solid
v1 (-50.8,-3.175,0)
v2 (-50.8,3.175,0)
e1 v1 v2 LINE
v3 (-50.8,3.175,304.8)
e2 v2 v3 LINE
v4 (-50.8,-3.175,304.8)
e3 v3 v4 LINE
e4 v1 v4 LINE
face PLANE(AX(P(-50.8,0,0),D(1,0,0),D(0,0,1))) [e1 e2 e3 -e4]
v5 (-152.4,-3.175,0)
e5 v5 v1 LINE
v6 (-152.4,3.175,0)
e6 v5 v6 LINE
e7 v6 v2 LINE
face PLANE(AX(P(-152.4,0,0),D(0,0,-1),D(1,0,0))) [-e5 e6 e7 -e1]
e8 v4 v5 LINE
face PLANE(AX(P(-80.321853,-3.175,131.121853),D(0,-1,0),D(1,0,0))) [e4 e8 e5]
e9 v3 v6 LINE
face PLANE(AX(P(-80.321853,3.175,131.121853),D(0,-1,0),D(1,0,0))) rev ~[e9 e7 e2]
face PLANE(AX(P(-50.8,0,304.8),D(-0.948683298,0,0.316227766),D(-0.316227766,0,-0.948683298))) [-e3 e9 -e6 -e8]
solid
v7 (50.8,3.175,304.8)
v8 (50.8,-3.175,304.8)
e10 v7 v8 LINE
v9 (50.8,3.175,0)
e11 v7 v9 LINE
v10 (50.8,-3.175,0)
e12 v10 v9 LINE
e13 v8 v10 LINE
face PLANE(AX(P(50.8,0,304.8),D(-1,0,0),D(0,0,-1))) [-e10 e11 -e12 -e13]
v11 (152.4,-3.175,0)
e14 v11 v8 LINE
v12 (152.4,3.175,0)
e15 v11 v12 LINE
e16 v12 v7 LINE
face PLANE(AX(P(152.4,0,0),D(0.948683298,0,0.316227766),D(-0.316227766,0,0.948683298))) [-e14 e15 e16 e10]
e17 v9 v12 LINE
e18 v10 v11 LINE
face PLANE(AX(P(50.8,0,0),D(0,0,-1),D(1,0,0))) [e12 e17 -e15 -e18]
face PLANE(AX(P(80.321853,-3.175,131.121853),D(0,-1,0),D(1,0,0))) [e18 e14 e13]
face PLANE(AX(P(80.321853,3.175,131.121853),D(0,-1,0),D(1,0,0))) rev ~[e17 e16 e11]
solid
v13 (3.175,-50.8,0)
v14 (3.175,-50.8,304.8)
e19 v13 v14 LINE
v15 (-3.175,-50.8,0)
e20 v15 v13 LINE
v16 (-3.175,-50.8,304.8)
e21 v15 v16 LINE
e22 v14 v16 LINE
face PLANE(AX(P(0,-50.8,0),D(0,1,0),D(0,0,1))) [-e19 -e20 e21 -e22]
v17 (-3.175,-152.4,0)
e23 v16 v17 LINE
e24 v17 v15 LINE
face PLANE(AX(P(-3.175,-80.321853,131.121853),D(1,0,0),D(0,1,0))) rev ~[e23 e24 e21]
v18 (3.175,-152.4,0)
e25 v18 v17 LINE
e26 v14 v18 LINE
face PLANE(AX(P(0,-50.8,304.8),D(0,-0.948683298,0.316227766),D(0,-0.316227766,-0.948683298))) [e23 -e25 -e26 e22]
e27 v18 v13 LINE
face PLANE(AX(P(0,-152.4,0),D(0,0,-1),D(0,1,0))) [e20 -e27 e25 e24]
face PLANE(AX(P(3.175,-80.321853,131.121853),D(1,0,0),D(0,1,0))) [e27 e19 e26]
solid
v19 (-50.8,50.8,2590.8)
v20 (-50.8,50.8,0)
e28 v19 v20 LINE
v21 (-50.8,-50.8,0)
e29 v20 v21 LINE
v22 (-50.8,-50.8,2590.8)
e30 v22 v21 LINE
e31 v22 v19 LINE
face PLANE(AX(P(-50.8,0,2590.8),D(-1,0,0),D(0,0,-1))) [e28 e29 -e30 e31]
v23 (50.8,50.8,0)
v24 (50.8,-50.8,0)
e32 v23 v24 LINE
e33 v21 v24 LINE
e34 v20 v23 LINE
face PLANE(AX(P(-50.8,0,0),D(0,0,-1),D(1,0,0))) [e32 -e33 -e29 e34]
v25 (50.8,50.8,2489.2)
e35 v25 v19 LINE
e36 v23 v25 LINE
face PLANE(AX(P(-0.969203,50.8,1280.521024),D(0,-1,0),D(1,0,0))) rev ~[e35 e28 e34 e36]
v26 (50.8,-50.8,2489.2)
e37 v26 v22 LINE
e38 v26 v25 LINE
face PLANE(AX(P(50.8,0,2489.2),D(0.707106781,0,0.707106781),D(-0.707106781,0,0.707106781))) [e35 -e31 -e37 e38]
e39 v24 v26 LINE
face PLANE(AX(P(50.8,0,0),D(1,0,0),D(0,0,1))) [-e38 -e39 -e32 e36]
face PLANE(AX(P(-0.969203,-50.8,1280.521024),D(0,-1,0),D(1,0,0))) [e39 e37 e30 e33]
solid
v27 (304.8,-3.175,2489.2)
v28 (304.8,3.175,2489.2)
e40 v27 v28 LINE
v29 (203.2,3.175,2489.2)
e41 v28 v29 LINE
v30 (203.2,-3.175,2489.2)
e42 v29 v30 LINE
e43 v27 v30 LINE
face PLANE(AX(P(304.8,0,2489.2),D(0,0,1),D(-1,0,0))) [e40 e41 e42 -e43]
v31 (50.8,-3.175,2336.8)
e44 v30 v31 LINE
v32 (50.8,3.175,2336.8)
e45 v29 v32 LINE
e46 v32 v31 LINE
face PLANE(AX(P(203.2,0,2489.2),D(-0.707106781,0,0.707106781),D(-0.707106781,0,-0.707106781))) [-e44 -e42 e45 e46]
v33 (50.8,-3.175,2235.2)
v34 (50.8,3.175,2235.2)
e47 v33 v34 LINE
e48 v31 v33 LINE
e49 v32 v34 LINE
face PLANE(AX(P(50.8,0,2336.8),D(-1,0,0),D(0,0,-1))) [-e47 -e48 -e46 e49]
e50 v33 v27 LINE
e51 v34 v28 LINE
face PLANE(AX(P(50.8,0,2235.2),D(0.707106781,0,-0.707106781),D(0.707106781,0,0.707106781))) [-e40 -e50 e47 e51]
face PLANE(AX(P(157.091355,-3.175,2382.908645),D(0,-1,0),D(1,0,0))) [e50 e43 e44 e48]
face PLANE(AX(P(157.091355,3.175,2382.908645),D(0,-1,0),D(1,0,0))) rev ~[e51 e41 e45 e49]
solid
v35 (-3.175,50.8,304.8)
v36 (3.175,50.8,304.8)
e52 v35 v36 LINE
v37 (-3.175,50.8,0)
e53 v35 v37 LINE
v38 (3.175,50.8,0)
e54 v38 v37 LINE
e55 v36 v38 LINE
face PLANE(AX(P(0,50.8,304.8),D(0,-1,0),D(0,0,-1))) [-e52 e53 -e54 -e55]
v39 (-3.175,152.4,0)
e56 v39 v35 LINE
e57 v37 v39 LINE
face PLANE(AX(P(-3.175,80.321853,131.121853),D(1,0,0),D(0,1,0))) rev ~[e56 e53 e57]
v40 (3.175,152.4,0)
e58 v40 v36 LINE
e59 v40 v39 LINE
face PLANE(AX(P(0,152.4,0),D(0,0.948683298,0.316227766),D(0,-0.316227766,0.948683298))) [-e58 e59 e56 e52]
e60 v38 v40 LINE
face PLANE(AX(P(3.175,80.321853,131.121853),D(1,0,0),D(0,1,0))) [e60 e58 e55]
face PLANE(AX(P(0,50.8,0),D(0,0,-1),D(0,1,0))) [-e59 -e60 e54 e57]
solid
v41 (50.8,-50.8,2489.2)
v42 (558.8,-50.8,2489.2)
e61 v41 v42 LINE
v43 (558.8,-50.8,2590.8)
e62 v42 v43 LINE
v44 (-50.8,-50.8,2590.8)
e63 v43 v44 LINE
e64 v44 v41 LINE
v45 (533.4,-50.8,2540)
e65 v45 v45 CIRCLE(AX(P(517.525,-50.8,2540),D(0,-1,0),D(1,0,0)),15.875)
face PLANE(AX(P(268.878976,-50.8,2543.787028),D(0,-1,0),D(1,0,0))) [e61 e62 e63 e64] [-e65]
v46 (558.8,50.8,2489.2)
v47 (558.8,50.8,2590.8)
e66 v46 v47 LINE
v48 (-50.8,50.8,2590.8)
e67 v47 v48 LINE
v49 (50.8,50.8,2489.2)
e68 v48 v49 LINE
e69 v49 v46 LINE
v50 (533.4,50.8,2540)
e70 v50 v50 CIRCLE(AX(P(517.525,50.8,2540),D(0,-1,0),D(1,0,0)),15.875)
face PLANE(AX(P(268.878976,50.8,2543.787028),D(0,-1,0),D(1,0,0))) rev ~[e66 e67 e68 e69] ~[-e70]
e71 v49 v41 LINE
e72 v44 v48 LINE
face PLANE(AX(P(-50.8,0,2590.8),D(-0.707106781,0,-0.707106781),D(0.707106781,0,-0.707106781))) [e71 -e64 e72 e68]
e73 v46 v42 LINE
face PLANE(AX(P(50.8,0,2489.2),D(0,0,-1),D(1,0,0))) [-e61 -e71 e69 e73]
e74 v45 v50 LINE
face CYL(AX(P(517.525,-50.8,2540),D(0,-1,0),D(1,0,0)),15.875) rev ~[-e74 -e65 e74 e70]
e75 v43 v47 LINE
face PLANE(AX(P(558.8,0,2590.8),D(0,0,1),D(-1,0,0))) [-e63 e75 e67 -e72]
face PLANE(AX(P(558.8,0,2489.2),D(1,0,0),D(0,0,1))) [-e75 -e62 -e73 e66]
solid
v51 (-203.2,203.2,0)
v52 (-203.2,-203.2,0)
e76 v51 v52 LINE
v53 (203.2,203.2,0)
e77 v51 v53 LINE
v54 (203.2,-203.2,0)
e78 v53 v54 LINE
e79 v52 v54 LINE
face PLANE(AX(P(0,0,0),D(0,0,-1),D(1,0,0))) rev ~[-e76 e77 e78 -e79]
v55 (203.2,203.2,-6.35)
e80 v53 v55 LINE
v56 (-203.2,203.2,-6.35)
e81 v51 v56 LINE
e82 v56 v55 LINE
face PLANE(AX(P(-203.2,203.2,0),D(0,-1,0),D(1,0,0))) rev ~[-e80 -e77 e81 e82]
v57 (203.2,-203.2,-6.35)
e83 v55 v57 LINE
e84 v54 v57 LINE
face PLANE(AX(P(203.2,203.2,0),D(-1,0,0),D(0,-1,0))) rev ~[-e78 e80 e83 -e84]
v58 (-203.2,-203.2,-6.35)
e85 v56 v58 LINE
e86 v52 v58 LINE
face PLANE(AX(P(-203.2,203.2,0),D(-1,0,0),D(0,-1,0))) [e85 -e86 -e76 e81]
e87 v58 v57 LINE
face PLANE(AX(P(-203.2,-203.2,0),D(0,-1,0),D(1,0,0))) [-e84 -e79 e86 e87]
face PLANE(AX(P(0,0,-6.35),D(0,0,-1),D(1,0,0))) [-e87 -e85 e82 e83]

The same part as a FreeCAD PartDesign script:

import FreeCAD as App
import Part
import Sketcher
Q = App.Units.Quantity


def add_polygon(sketch, points):
    """Adds a closed chain of lines whose ends are joined by coincident constraints."""
    first, n = sketch.GeometryCount, len(points)
    for a, b in zip(points, points[1:] + points[:1]):
        sketch.addGeometry(Part.LineSegment(App.Vector(*a, 0), App.Vector(*b, 0)), False)
    for i in range(n):
        sketch.addConstraint(Sketcher.Constraint("Coincident", first + i, 2, first + (i + 1) % n, 1))

doc = App.newDocument("Part")
body = doc.addObject("PartDesign::Body", "Body")

sketch1 = body.newObject("Sketcher::SketchObject", "Sketch")
sketch1.AttachmentSupport = (doc.getObject("XZ_Plane"), [""])
sketch1.MapMode = "FlatFace"
add_polygon(sketch1, [(-51, 2591), (-51, 0), (51, 0), (51, 2489)])
sketch1.addConstraint([
    Sketcher.Constraint("Vertical", 0),
    Sketcher.Constraint("Horizontal", 1),
    Sketcher.Constraint("Vertical", 2),
    Sketcher.Constraint("Symmetric", 0, 2, 1, 2, -1, 1),
    Sketcher.Constraint("DistanceX", 1, 1, 1, 2, Q("4 in")),
    Sketcher.Constraint("DistanceY", 0, 2, 0, 1, Q("102 in")),
    Sketcher.Constraint("DistanceY", 2, 1, 2, 2, Q("98 in")),
])
pad1 = body.newObject("PartDesign::Pad", "Pad")
pad1.Profile = sketch1
pad1.Length = Q("4 in")
pad1.Midplane = True

sketch2 = body.newObject("Sketcher::SketchObject", "Sketch001")
sketch2.AttachmentSupport = (doc.getObject("XZ_Plane"), [""])
sketch2.MapMode = "FlatFace"
add_polygon(sketch2, [(51, 2591), (-51, 2591), (51, 2489)])
sketch2.addConstraint([
    Sketcher.Constraint("Horizontal", 0),
    Sketcher.Constraint("Vertical", 2),
    Sketcher.Constraint("Equal", 0, 2),
    Sketcher.Constraint("DistanceX", 0, 2, 0, 1, Q("4 in")),
    Sketcher.Constraint("DistanceX", 0, 2, -1, 1, Q("2 in")),
    Sketcher.Constraint("DistanceY", -1, 1, 0, 2, Q("102 in")),
])
pocket1 = body.newObject("PartDesign::Pocket", "Pocket")
pocket1.Profile = sketch2
pocket1.Length = Q("4 in")
pocket1.Midplane = True
body2 = doc.addObject("PartDesign::Body", "Body001")

sketch3 = body2.newObject("Sketcher::SketchObject", "Sketch002")
sketch3.AttachmentSupport = (doc.getObject("XY_Plane001"), [""])
sketch3.MapMode = "FlatFace"
add_polygon(sketch3, [(-203, -203), (-203, 203), (203, 203), (203, -203)])
sketch3.addConstraint([
    Sketcher.Constraint("Vertical", 0),
    Sketcher.Constraint("Horizontal", 1),
    Sketcher.Constraint("Vertical", 2),
    Sketcher.Constraint("Horizontal", 3),
    Sketcher.Constraint("Symmetric", 0, 2, 2, 2, -1, 1),
    Sketcher.Constraint("Equal", 3, 0),
    Sketcher.Constraint("DistanceX", 1, 1, 1, 2, Q("16 in")),
])
pad2 = body2.newObject("PartDesign::Pad", "Pad001")
pad2.Profile = sketch3
pad2.Length = Q("0.25 in")
pad2.Reversed = True
body3 = doc.addObject("PartDesign::Body", "Body002")

sketch4 = body3.newObject("Sketcher::SketchObject", "Sketch003")
sketch4.AttachmentSupport = (doc.getObject("YZ_Plane002"), [""])
sketch4.MapMode = "FlatFace"
add_polygon(sketch4, [(152, 0), (51, 305), (51, 0)])
sketch4.addConstraint([
    Sketcher.Constraint("Vertical", 1),
    Sketcher.Constraint("Horizontal", 2),
    Sketcher.Constraint("PointOnObject", 1, 2, -1),
    Sketcher.Constraint("DistanceX", 2, 1, 2, 2, Q("4 in")),
    Sketcher.Constraint("DistanceY", 1, 2, 1, 1, Q("12 in")),
    Sketcher.Constraint("DistanceX", -1, 1, 0, 2, Q("2 in")),
])
pad3 = body3.newObject("PartDesign::Pad", "Pad002")
pad3.Profile = sketch4
pad3.Length = Q("0.25 in")
pad3.Midplane = True
body4 = doc.addObject("PartDesign::Body", "Body003")

sketch5 = body4.newObject("Sketcher::SketchObject", "Sketch004")
sketch5.AttachmentSupport = (doc.getObject("YZ_Plane003"), [""])
sketch5.MapMode = "FlatFace"
add_polygon(sketch5, [(-152, 0), (-51, 0), (-51, 305)])
sketch5.addConstraint([
    Sketcher.Constraint("Horizontal", 0),
    Sketcher.Constraint("Vertical", 1),
    Sketcher.Constraint("PointOnObject", 0, 2, -1),
    Sketcher.Constraint("DistanceX", 0, 1, 0, 2, Q("4 in")),
    Sketcher.Constraint("DistanceY", 1, 1, 1, 2, Q("12 in")),
    Sketcher.Constraint("DistanceX", 0, 2, -1, 1, Q("2 in")),
])
pad4 = body4.newObject("PartDesign::Pad", "Pad003")
pad4.Profile = sketch5
pad4.Length = Q("0.25 in")
pad4.Midplane = True
body5 = doc.addObject("PartDesign::Body", "Body004")

sketch6 = body5.newObject("Sketcher::SketchObject", "Sketch005")
sketch6.AttachmentSupport = (doc.getObject("XZ_Plane004"), [""])
sketch6.MapMode = "FlatFace"
add_polygon(sketch6, [(152, 0), (51, 305), (51, 0)])
sketch6.addConstraint([
    Sketcher.Constraint("Vertical", 1),
    Sketcher.Constraint("Horizontal", 2),
    Sketcher.Constraint("PointOnObject", 1, 2, -1),
    Sketcher.Constraint("DistanceX", 2, 1, 2, 2, Q("4 in")),
    Sketcher.Constraint("DistanceY", 1, 2, 1, 1, Q("12 in")),
    Sketcher.Constraint("DistanceX", -1, 1, 0, 2, Q("2 in")),
])
pad5 = body5.newObject("PartDesign::Pad", "Pad004")
pad5.Profile = sketch6
pad5.Length = Q("0.25 in")
pad5.Midplane = True
body6 = doc.addObject("PartDesign::Body", "Body005")

sketch7 = body6.newObject("Sketcher::SketchObject", "Sketch006")
sketch7.AttachmentSupport = (doc.getObject("XZ_Plane005"), [""])
sketch7.MapMode = "FlatFace"
add_polygon(sketch7, [(-51, 0), (-51, 305), (-152, 0)])
sketch7.addConstraint([
    Sketcher.Constraint("Vertical", 0),
    Sketcher.Constraint("Horizontal", 2),
    Sketcher.Constraint("PointOnObject", 1, 2, -1),
    Sketcher.Constraint("DistanceX", 2, 1, 2, 2, Q("4 in")),
    Sketcher.Constraint("DistanceY", 0, 1, 0, 2, Q("12 in")),
    Sketcher.Constraint("DistanceX", 0, 2, -1, 1, Q("2 in")),
])
pad6 = body6.newObject("PartDesign::Pad", "Pad005")
pad6.Profile = sketch7
pad6.Length = Q("0.25 in")
pad6.Midplane = True
body7 = doc.addObject("PartDesign::Body", "Body006")

sketch8 = body7.newObject("Sketcher::SketchObject", "Sketch007")
sketch8.AttachmentSupport = (doc.getObject("XZ_Plane006"), [""])
sketch8.MapMode = "FlatFace"
add_polygon(sketch8, [(-51, 2591), (51, 2489), (559, 2489), (559, 2591)])
sketch8.addConstraint([
    Sketcher.Constraint("Horizontal", 1),
    Sketcher.Constraint("Vertical", 2),
    Sketcher.Constraint("Horizontal", 3),
    Sketcher.Constraint("DistanceX", 1, 1, 1, 2, Q("20 in")),
    Sketcher.Constraint("DistanceX", 3, 2, 3, 1, Q("24 in")),
    Sketcher.Constraint("DistanceY", 2, 1, 2, 2, Q("4 in")),
    Sketcher.Constraint("DistanceX", -1, 1, 0, 2, Q("2 in")),
    Sketcher.Constraint("DistanceY", -1, 1, 0, 2, Q("98 in")),
])
pad7 = body7.newObject("PartDesign::Pad", "Pad006")
pad7.Profile = sketch8
pad7.Length = Q("4 in")
pad7.Midplane = True

sketch9 = body7.newObject("Sketcher::SketchObject", "Sketch008")
sketch9.AttachmentSupport = (doc.getObject("XZ_Plane006"), [""])
sketch9.MapMode = "FlatFace"
sketch9.AttachmentOffset = App.Placement(App.Vector(0, 0, 2 * 25.4), App.Rotation())
sketch9.addGeometry(Part.Circle(App.Vector(518, 2540, 0), App.Vector(0, 0, 1), 16), False)
sketch9.addConstraint([
    Sketcher.Constraint("Diameter", 0, Q("1.25 in")),
    Sketcher.Constraint("DistanceY", -1, 1, 0, 3, Q("100 in")),
    Sketcher.Constraint("DistanceX", -1, 1, 0, 3, Q("20.375 in")),
])
pocket2 = body7.newObject("PartDesign::Pocket", "Pocket001")
pocket2.Profile = sketch9
pocket2.Length = Q("5 in")
body8 = doc.addObject("PartDesign::Body", "Body007")

sketch10 = body8.newObject("Sketcher::SketchObject", "Sketch009")
sketch10.AttachmentSupport = (doc.getObject("XZ_Plane007"), [""])
sketch10.MapMode = "FlatFace"
add_polygon(sketch10, [(305, 2489), (203, 2489), (51, 2337), (51, 2235)])
sketch10.addConstraint([
    Sketcher.Constraint("Horizontal", 0),
    Sketcher.Constraint("Vertical", 2),
    Sketcher.Constraint("Parallel", 1, 3),
    Sketcher.Constraint("Equal", 0, 2),
    Sketcher.Constraint("DistanceX", 0, 2, 0, 1, Q("4 in")),
    Sketcher.Constraint("DistanceX", -1, 1, 0, 2, Q("8 in")),
    Sketcher.Constraint("DistanceY", -1, 1, 0, 2, Q("98 in")),
    Sketcher.Constraint("DistanceX", -1, 1, 1, 2, Q("2 in")),
])
pad8 = body8.newObject("PartDesign::Pad", "Pad007")
pad8.Profile = sketch10
pad8.Length = Q("0.25 in")
pad8.Midplane = True

doc.recompute()
